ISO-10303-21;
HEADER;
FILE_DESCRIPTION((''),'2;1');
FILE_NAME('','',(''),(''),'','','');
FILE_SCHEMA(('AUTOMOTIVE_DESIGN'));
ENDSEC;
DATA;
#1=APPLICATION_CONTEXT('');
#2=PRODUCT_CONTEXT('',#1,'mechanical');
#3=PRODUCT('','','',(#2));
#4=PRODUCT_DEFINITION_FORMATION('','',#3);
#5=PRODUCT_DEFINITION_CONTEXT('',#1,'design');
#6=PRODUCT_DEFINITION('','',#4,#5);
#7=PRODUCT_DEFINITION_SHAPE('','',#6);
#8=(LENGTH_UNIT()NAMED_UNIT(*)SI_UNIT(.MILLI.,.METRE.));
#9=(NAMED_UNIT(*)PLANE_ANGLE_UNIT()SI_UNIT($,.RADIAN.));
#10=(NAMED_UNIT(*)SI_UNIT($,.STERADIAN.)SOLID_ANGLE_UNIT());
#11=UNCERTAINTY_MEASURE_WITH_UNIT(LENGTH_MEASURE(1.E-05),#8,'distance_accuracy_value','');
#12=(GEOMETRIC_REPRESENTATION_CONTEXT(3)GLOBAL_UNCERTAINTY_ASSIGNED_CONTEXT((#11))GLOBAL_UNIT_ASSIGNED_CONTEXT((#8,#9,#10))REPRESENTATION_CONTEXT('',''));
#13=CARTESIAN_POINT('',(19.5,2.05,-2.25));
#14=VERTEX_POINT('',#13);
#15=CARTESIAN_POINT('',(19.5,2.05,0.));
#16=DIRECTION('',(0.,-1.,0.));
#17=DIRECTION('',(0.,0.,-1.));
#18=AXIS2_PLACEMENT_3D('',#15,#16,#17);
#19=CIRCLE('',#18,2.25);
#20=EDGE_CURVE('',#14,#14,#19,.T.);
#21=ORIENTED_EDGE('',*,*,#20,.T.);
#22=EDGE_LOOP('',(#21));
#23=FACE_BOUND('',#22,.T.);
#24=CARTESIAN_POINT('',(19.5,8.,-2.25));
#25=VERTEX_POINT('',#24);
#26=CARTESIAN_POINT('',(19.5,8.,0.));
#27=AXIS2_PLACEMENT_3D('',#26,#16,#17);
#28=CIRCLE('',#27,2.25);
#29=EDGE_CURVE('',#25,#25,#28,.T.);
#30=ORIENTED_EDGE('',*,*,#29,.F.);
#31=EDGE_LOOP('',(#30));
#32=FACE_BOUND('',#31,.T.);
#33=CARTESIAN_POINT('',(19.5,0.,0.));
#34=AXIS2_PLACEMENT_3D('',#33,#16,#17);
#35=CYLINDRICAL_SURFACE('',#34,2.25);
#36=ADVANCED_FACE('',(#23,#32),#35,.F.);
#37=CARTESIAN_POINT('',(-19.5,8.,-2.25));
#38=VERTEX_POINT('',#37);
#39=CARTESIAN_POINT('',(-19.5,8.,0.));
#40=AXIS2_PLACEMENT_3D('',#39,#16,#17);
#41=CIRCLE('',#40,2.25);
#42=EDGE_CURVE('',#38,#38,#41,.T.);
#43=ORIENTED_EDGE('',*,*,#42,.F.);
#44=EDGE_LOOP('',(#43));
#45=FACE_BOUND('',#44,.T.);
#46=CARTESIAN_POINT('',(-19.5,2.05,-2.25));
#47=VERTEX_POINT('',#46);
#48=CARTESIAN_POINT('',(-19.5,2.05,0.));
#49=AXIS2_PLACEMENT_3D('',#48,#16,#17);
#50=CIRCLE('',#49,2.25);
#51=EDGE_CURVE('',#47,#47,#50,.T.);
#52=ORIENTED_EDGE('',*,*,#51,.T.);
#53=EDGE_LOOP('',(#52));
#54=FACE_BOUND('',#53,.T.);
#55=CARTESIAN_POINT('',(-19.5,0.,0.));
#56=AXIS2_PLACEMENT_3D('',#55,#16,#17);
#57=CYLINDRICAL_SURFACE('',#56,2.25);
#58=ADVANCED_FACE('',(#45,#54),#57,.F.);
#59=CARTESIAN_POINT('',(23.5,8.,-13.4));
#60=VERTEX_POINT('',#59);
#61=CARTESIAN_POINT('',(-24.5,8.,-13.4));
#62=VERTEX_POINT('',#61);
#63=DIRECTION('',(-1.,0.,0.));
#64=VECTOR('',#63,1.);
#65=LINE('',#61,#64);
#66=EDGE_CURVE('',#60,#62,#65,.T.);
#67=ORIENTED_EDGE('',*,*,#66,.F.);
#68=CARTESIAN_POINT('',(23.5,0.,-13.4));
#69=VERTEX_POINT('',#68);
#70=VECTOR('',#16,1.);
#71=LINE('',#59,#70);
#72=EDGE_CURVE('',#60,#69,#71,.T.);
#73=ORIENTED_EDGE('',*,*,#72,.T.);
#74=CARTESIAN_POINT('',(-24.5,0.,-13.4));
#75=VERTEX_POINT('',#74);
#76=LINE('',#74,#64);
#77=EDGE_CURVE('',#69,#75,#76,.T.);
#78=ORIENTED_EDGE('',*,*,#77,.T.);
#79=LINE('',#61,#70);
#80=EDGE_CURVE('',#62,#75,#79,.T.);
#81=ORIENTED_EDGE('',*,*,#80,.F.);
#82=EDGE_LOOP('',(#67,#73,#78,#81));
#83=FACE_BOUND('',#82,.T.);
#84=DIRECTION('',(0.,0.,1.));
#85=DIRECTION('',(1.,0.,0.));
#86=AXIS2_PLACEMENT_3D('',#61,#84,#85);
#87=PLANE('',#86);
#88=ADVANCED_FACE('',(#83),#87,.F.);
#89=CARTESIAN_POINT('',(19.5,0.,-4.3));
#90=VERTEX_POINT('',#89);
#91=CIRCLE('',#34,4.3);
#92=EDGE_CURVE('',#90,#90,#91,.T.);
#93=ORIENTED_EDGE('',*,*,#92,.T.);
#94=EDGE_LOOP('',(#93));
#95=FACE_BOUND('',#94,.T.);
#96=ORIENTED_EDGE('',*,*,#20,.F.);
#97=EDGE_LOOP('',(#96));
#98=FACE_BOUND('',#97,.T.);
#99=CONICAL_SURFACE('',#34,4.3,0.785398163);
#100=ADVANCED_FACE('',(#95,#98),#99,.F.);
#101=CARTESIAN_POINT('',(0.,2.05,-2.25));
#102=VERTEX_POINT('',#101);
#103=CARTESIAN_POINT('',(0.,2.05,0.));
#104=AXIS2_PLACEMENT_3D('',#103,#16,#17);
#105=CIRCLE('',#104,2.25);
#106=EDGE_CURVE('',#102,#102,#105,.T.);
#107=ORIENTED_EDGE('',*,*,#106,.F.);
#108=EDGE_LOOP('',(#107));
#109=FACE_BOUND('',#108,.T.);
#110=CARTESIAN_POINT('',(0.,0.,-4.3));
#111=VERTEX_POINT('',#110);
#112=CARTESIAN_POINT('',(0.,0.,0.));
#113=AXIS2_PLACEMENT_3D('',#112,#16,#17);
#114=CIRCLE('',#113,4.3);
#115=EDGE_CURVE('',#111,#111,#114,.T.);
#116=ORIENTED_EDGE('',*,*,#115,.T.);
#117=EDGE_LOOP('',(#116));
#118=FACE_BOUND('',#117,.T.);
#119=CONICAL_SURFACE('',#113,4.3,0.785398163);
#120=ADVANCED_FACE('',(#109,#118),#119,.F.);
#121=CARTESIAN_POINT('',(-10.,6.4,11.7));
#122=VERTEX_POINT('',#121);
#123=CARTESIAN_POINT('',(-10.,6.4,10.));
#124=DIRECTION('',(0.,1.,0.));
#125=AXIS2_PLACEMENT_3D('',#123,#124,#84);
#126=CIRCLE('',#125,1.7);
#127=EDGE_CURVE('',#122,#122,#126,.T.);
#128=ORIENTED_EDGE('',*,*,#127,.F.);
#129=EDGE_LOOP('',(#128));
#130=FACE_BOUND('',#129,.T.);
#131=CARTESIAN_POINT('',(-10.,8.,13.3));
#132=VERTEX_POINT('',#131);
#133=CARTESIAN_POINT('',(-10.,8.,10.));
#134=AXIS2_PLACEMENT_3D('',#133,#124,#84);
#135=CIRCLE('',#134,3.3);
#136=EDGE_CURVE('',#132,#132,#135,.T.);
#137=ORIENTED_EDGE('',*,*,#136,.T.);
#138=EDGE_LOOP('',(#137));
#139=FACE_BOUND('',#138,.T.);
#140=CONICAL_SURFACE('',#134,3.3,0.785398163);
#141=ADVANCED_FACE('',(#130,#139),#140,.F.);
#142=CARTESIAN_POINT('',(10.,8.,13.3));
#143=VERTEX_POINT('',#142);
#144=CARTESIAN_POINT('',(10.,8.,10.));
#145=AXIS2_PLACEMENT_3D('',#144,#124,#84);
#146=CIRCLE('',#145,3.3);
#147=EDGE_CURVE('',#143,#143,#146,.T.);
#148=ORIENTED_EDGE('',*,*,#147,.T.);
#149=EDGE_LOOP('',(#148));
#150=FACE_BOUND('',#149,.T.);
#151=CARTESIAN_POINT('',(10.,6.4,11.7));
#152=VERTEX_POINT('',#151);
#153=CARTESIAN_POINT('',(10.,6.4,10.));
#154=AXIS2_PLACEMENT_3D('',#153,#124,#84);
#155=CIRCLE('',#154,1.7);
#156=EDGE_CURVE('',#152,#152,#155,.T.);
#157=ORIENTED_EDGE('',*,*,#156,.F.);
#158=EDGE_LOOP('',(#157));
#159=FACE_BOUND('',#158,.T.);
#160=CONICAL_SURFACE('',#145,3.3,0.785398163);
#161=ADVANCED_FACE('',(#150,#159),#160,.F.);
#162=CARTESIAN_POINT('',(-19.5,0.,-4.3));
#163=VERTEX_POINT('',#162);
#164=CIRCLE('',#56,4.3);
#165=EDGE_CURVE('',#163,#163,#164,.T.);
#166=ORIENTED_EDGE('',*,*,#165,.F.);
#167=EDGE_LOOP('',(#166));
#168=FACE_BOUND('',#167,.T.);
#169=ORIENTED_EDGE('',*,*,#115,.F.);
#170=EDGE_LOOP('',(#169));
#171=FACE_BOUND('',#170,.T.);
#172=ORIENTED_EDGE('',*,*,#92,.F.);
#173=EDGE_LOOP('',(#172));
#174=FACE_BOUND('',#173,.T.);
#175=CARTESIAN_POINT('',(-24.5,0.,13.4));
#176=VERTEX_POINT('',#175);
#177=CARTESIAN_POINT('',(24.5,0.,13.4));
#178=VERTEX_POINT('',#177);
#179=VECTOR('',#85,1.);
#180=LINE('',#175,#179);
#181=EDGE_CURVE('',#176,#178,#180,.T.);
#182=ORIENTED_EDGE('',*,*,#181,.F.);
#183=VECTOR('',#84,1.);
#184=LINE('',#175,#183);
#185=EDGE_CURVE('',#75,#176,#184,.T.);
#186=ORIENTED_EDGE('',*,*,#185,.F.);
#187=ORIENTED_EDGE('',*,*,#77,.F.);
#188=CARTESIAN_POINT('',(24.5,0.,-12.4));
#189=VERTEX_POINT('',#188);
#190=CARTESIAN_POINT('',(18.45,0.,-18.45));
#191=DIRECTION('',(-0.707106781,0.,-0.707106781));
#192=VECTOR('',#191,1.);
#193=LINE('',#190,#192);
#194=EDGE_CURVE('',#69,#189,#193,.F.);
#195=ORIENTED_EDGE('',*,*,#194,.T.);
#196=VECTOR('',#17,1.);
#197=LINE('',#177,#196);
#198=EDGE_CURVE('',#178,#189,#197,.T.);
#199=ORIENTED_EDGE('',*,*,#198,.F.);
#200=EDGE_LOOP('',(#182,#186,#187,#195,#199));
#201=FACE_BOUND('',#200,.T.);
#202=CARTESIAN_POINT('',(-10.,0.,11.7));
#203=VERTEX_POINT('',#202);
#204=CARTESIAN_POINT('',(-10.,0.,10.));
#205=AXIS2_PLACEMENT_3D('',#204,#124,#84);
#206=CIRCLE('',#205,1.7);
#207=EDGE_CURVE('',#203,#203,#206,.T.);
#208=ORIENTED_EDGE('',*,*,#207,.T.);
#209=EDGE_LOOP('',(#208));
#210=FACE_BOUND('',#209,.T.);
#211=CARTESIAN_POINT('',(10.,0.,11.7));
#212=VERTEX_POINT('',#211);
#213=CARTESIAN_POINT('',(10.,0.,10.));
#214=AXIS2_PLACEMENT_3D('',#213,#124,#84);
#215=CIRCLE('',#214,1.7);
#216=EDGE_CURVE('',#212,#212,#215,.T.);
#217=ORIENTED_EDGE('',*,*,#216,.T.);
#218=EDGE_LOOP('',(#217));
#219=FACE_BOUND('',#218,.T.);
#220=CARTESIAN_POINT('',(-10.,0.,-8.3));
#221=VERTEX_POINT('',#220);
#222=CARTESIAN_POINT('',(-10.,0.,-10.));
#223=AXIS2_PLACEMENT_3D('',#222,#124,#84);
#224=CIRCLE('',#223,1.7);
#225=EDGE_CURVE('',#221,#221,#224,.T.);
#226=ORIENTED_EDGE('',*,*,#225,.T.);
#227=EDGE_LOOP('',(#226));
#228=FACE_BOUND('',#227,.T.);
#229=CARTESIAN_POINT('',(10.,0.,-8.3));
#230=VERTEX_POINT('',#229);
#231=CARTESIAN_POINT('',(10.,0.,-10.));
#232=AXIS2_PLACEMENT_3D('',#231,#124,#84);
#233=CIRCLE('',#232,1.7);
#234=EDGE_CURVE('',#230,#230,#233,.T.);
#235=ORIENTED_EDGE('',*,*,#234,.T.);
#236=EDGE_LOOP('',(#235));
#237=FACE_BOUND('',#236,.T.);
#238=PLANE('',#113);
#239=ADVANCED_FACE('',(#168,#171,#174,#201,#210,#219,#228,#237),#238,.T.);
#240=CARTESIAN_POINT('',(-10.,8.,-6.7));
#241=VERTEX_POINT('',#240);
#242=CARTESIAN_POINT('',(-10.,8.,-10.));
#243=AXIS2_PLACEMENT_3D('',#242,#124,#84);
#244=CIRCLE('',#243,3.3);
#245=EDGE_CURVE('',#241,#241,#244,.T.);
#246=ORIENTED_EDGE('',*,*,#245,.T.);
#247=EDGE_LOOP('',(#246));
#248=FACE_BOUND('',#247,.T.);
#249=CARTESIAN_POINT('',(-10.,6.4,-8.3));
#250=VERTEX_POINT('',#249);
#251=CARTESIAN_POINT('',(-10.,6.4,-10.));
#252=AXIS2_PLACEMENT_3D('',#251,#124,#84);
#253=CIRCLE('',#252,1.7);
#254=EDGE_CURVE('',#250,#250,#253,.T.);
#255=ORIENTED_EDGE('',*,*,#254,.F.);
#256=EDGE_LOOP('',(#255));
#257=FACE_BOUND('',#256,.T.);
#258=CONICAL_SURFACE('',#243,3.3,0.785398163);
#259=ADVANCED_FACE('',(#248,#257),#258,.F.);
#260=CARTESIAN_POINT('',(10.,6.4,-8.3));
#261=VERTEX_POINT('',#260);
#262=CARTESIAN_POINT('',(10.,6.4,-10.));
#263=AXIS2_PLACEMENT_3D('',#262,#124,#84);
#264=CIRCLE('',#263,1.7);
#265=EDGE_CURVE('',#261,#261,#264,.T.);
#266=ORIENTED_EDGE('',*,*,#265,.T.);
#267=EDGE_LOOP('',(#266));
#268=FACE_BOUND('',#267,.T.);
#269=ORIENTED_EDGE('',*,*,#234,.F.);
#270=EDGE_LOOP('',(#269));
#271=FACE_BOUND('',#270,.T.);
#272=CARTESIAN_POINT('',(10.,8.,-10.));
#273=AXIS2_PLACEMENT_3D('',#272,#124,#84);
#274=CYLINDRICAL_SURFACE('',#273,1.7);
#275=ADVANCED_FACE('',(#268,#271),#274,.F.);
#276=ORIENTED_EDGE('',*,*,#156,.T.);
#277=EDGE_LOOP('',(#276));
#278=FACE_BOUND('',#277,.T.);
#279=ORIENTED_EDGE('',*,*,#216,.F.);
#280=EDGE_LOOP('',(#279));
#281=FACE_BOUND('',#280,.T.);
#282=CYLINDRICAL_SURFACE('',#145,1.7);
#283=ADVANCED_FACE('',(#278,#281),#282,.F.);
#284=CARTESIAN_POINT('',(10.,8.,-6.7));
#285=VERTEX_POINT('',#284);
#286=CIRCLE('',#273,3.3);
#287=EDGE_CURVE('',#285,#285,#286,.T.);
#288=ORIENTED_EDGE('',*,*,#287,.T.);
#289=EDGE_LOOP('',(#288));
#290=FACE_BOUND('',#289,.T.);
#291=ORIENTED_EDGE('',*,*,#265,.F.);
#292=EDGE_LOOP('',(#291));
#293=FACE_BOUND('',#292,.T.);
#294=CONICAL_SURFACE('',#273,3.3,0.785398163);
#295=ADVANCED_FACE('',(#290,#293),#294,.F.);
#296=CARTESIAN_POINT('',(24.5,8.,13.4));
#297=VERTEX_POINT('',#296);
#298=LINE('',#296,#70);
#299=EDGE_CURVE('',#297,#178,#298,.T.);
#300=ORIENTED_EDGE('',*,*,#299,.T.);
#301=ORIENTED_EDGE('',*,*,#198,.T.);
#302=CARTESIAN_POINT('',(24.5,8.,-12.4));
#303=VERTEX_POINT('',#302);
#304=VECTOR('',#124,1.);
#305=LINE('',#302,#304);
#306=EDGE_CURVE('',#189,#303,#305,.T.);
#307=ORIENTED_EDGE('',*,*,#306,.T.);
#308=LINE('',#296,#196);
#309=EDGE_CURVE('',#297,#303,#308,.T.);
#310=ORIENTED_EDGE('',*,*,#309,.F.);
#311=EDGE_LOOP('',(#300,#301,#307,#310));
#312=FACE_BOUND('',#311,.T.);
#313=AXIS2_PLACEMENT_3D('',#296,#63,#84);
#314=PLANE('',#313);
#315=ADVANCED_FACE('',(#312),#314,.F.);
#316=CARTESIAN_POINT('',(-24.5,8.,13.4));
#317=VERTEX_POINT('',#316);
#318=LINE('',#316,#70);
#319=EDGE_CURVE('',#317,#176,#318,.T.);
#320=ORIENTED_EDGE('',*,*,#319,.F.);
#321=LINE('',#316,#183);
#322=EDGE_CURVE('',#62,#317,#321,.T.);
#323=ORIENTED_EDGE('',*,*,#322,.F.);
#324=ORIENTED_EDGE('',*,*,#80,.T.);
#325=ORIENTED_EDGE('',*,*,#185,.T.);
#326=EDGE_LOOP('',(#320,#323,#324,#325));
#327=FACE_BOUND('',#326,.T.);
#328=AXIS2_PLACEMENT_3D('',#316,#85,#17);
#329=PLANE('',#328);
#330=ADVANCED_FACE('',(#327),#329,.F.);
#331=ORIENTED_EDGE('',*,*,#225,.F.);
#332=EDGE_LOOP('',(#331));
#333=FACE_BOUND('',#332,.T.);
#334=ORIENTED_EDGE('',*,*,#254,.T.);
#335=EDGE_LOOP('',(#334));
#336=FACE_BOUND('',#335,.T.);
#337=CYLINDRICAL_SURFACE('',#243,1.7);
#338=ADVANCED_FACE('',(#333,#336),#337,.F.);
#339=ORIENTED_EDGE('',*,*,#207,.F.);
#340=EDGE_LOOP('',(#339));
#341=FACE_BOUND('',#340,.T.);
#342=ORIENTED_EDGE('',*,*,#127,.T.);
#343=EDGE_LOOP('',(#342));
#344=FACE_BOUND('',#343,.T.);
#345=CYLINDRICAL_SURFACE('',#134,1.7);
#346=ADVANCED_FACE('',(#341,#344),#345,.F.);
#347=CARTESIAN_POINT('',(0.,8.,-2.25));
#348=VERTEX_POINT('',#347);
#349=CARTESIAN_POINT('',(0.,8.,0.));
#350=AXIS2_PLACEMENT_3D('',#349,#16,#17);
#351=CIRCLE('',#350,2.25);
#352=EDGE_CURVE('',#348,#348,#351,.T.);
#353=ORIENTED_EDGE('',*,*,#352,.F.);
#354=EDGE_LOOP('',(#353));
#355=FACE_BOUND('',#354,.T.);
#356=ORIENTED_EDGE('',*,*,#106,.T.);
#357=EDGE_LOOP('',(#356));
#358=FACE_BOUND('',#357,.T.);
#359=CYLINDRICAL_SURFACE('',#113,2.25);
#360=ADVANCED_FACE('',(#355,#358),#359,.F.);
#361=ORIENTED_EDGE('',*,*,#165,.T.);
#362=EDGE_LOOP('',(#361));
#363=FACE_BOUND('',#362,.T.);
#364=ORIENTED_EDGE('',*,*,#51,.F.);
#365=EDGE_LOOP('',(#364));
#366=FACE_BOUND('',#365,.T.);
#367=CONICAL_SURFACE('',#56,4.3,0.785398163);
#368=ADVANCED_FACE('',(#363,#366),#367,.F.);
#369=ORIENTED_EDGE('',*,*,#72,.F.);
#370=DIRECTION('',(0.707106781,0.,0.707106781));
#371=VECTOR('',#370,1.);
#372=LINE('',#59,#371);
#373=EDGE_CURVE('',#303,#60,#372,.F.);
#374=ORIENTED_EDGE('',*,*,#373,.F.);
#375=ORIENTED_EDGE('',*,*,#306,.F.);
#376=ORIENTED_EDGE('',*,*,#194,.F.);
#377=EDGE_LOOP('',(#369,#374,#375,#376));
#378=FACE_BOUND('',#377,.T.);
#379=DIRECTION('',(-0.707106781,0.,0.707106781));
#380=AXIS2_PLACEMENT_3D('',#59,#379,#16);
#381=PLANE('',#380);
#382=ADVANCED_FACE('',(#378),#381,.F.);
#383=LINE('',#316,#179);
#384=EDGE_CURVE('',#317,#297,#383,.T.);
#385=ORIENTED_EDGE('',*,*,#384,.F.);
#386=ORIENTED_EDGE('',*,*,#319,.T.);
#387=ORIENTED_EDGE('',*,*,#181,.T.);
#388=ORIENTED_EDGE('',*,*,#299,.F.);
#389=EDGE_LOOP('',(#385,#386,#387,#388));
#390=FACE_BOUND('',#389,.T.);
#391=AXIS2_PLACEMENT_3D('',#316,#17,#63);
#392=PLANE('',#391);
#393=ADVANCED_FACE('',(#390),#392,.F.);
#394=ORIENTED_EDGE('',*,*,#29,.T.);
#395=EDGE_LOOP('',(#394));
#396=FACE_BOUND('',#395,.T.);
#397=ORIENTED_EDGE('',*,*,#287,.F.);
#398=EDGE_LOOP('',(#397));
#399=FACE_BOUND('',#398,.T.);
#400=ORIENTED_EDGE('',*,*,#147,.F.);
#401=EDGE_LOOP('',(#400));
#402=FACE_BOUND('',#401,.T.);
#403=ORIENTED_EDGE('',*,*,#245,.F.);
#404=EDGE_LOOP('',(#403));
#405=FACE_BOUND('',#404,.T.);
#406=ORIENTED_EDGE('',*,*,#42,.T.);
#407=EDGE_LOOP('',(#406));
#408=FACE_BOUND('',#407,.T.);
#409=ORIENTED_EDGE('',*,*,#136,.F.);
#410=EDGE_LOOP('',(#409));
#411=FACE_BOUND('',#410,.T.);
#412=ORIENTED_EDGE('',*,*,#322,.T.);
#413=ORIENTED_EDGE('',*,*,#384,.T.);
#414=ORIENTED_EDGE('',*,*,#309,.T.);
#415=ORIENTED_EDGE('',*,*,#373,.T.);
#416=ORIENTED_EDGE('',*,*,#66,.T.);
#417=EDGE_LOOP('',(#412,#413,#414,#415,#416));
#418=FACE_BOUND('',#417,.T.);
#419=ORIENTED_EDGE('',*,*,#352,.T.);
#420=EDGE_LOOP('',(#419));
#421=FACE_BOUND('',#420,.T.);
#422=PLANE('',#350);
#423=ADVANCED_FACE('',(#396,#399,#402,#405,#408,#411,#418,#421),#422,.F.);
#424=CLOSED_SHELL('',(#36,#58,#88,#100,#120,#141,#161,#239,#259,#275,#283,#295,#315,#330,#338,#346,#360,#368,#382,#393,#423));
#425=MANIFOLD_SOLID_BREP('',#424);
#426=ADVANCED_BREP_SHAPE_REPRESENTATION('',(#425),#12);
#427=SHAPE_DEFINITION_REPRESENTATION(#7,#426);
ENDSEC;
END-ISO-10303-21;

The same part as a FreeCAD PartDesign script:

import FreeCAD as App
import Part
import Sketcher
from FreeCAD import Vector


def edges_at(feature, points):
    """Names of the edges that pass closest to the given points."""
    edges = feature.Shape.Edges
    near = lambda p: min(range(len(edges)), key=lambda i: edges[i].distToShape(Part.Vertex(*p))[0])
    return sorted({f"Edge{near(p) + 1}" for p in points})


def add_polygon(sketch, points):
    """Adds a closed chain of lines whose ends are joined by coincident constraints."""
    first, n = sketch.GeometryCount, len(points)
    for a, b in zip(points, points[1:] + points[:1]):
        sketch.addGeometry(Part.LineSegment(App.Vector(*a, 0), App.Vector(*b, 0)), False)
    for i in range(n):
        sketch.addConstraint(Sketcher.Constraint("Coincident", first + i, 2, first + (i + 1) % n, 1))

doc = App.newDocument("Part")
body = doc.addObject("PartDesign::Body", "Body")

sketch1 = body.newObject("Sketcher::SketchObject", "Sketch")
sketch1.AttachmentSupport = (doc.getObject("XZ_Plane"), [""])
sketch1.MapMode = "FlatFace"
add_polygon(sketch1, [(-24, -13), (-24, 13), (24, 13), (24, -13)])
sketch1.addConstraint([
    Sketcher.Constraint("Vertical", 0),
    Sketcher.Constraint("Horizontal", 1),
    Sketcher.Constraint("Vertical", 2),
    Sketcher.Constraint("Horizontal", 3),
    Sketcher.Constraint("Symmetric", 0, 2, 2, 2, -1, 1),
    Sketcher.Constraint("DistanceX", 1, 1, 1, 2, 49.0),
    Sketcher.Constraint("DistanceY", 0, 1, 0, 2, 26.8),
])
pad1 = body.newObject("PartDesign::Pad", "Pad")
pad1.Profile = sketch1
pad1.Length = 8
pad1.Reversed = True

sketch2 = body.newObject("Sketcher::SketchObject", "Sketch001")
sketch2.AttachmentSupport = (doc.getObject("XZ_Plane"), [""])
sketch2.MapMode = "FlatFace"
sketch2.AttachmentOffset = App.Placement(Vector(0, 0, -8), App.Rotation())
sketch2.addGeometry([
    Part.Circle(Vector(-10, 10, 0), Vector(0, 0, 1), 1.7),
    Part.Circle(Vector(10, 10, 0), Vector(0, 0, 1), 1.7),
    Part.Circle(Vector(10, -10, 0), Vector(0, 0, 1), 1.7),
    Part.Circle(Vector(-10, -10, 0), Vector(0, 0, 1), 1.7),
], False)
sketch2.addConstraint([
    Sketcher.Constraint("Equal", 0, 1),
    Sketcher.Constraint("Equal", 1, 2),
    Sketcher.Constraint("Equal", 2, 3),
    Sketcher.Constraint("Symmetric", 0, 3, 2, 3, -1, 1),
    Sketcher.Constraint("Symmetric", 1, 3, 3, 3, -1, 1),
    Sketcher.Constraint("Symmetric", 0, 3, 1, 3, -2),
    Sketcher.Constraint("Diameter", 0, 3.4),
    Sketcher.Constraint("DistanceX", 0, 3, -1, 1, 10.0),
    Sketcher.Constraint("DistanceY", -1, 1, 0, 3, 10.0),
])
doc.recompute()
hole = body.newObject("PartDesign::Hole", "Hole")
hole.Profile = sketch2
hole.ThreadType = "None"
hole.Diameter = 3.4
hole.DepthType = "ThroughAll"
hole.HoleCutType = "Countersink"
hole.HoleCutDiameter = 6.6
hole.HoleCutCountersinkAngle = 90
hole.Reversed = True

sketch3 = body.newObject("Sketcher::SketchObject", "Sketch002")
sketch3.AttachmentSupport = (doc.getObject("XZ_Plane"), [""])
sketch3.MapMode = "FlatFace"
sketch3.addGeometry([
    Part.Circle(Vector(-19.5, 0, 0), Vector(0, 0, 1), 2.2),
    Part.Circle(Vector(0, 0, 0), Vector(0, 0, 1), 2.2),
    Part.Circle(Vector(19.5, 0, 0), Vector(0, 0, 1), 2.2),
], False)
sketch3.addConstraint([
    Sketcher.Constraint("Coincident", 1, 3, -1, 1),
    Sketcher.Constraint("Equal", 0, 1),
    Sketcher.Constraint("Equal", 1, 2),
    Sketcher.Constraint("Symmetric", 0, 3, 2, 3, -1, 1),
    Sketcher.Constraint("PointOnObject", 0, 3, -1),
    Sketcher.Constraint("Diameter", 0, 4.5),
    Sketcher.Constraint("DistanceX", 0, 3, 2, 3, 39.0),
])
doc.recompute()
hole2 = body.newObject("PartDesign::Hole", "Hole001")
hole2.Profile = sketch3
hole2.ThreadType = "None"
hole2.Diameter = 4.5
hole2.DepthType = "ThroughAll"
hole2.HoleCutType = "Countersink"
hole2.HoleCutDiameter = 8.6
hole2.HoleCutCountersinkAngle = 90
doc.recompute()

chamfer = body.newObject("PartDesign::Chamfer", "Chamfer")
chamfer.Base = (hole2, edges_at(hole2, [(24.5, 4, -13.4)]))
chamfer.Size = 1

doc.recompute()
